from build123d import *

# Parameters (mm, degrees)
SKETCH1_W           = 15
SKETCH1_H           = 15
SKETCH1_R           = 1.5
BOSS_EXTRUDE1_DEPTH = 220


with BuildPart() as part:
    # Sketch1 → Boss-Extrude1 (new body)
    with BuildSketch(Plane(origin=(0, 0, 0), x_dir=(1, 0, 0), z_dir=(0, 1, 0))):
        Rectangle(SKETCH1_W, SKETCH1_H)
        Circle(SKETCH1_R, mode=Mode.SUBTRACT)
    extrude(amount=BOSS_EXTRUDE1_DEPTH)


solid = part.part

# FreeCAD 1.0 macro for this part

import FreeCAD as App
import Part
import Sketcher

V = App.Vector


def add_polygon(sketch, points):
    """Adds a closed chain of lines whose ends are joined by coincident constraints."""
    first, n = sketch.GeometryCount, len(points)
    for a, b in zip(points, points[1:] + points[:1]):
        sketch.addGeometry(Part.LineSegment(App.Vector(*a, 0), App.Vector(*b, 0)), False)
    for i in range(n):
        sketch.addConstraint(Sketcher.Constraint("Coincident", first + i, 2, first + (i + 1) % n, 1))

doc = App.newDocument("Part")
body = doc.addObject("PartDesign::Body", "Body")

sketch1 = body.newObject("Sketcher::SketchObject", "Sketch")
sketch1.AttachmentSupport = (doc.getObject("XZ_Plane"), [""])
sketch1.MapMode = "FlatFace"
add_polygon(sketch1, [(-7.5, -7.5), (-7.5, 7.5), (7.5, 7.5), (7.5, -7.5)])
sketch1.addGeometry(Part.Circle(V(0, 0, 0), V(0, 0, 1), 1.5), False)
sketch1.addConstraint([
    Sketcher.Constraint("Vertical", 0),
    Sketcher.Constraint("Horizontal", 1),
    Sketcher.Constraint("Vertical", 2),
    Sketcher.Constraint("Horizontal", 3),
    Sketcher.Constraint("Coincident", 4, 3, -1, 1),
    Sketcher.Constraint("Symmetric", 0, 2, 2, 2, -1, 1),
    Sketcher.Constraint("Equal", 3, 0),
    Sketcher.Constraint("Diameter", 4, 3.0),
    Sketcher.Constraint("DistanceX", 1, 1, 1, 2, 15.0),
])
pad1 = body.newObject("PartDesign::Pad", "Pad")
pad1.Profile = sketch1
pad1.Length = 220
pad1.Reversed = True

doc.recompute()
